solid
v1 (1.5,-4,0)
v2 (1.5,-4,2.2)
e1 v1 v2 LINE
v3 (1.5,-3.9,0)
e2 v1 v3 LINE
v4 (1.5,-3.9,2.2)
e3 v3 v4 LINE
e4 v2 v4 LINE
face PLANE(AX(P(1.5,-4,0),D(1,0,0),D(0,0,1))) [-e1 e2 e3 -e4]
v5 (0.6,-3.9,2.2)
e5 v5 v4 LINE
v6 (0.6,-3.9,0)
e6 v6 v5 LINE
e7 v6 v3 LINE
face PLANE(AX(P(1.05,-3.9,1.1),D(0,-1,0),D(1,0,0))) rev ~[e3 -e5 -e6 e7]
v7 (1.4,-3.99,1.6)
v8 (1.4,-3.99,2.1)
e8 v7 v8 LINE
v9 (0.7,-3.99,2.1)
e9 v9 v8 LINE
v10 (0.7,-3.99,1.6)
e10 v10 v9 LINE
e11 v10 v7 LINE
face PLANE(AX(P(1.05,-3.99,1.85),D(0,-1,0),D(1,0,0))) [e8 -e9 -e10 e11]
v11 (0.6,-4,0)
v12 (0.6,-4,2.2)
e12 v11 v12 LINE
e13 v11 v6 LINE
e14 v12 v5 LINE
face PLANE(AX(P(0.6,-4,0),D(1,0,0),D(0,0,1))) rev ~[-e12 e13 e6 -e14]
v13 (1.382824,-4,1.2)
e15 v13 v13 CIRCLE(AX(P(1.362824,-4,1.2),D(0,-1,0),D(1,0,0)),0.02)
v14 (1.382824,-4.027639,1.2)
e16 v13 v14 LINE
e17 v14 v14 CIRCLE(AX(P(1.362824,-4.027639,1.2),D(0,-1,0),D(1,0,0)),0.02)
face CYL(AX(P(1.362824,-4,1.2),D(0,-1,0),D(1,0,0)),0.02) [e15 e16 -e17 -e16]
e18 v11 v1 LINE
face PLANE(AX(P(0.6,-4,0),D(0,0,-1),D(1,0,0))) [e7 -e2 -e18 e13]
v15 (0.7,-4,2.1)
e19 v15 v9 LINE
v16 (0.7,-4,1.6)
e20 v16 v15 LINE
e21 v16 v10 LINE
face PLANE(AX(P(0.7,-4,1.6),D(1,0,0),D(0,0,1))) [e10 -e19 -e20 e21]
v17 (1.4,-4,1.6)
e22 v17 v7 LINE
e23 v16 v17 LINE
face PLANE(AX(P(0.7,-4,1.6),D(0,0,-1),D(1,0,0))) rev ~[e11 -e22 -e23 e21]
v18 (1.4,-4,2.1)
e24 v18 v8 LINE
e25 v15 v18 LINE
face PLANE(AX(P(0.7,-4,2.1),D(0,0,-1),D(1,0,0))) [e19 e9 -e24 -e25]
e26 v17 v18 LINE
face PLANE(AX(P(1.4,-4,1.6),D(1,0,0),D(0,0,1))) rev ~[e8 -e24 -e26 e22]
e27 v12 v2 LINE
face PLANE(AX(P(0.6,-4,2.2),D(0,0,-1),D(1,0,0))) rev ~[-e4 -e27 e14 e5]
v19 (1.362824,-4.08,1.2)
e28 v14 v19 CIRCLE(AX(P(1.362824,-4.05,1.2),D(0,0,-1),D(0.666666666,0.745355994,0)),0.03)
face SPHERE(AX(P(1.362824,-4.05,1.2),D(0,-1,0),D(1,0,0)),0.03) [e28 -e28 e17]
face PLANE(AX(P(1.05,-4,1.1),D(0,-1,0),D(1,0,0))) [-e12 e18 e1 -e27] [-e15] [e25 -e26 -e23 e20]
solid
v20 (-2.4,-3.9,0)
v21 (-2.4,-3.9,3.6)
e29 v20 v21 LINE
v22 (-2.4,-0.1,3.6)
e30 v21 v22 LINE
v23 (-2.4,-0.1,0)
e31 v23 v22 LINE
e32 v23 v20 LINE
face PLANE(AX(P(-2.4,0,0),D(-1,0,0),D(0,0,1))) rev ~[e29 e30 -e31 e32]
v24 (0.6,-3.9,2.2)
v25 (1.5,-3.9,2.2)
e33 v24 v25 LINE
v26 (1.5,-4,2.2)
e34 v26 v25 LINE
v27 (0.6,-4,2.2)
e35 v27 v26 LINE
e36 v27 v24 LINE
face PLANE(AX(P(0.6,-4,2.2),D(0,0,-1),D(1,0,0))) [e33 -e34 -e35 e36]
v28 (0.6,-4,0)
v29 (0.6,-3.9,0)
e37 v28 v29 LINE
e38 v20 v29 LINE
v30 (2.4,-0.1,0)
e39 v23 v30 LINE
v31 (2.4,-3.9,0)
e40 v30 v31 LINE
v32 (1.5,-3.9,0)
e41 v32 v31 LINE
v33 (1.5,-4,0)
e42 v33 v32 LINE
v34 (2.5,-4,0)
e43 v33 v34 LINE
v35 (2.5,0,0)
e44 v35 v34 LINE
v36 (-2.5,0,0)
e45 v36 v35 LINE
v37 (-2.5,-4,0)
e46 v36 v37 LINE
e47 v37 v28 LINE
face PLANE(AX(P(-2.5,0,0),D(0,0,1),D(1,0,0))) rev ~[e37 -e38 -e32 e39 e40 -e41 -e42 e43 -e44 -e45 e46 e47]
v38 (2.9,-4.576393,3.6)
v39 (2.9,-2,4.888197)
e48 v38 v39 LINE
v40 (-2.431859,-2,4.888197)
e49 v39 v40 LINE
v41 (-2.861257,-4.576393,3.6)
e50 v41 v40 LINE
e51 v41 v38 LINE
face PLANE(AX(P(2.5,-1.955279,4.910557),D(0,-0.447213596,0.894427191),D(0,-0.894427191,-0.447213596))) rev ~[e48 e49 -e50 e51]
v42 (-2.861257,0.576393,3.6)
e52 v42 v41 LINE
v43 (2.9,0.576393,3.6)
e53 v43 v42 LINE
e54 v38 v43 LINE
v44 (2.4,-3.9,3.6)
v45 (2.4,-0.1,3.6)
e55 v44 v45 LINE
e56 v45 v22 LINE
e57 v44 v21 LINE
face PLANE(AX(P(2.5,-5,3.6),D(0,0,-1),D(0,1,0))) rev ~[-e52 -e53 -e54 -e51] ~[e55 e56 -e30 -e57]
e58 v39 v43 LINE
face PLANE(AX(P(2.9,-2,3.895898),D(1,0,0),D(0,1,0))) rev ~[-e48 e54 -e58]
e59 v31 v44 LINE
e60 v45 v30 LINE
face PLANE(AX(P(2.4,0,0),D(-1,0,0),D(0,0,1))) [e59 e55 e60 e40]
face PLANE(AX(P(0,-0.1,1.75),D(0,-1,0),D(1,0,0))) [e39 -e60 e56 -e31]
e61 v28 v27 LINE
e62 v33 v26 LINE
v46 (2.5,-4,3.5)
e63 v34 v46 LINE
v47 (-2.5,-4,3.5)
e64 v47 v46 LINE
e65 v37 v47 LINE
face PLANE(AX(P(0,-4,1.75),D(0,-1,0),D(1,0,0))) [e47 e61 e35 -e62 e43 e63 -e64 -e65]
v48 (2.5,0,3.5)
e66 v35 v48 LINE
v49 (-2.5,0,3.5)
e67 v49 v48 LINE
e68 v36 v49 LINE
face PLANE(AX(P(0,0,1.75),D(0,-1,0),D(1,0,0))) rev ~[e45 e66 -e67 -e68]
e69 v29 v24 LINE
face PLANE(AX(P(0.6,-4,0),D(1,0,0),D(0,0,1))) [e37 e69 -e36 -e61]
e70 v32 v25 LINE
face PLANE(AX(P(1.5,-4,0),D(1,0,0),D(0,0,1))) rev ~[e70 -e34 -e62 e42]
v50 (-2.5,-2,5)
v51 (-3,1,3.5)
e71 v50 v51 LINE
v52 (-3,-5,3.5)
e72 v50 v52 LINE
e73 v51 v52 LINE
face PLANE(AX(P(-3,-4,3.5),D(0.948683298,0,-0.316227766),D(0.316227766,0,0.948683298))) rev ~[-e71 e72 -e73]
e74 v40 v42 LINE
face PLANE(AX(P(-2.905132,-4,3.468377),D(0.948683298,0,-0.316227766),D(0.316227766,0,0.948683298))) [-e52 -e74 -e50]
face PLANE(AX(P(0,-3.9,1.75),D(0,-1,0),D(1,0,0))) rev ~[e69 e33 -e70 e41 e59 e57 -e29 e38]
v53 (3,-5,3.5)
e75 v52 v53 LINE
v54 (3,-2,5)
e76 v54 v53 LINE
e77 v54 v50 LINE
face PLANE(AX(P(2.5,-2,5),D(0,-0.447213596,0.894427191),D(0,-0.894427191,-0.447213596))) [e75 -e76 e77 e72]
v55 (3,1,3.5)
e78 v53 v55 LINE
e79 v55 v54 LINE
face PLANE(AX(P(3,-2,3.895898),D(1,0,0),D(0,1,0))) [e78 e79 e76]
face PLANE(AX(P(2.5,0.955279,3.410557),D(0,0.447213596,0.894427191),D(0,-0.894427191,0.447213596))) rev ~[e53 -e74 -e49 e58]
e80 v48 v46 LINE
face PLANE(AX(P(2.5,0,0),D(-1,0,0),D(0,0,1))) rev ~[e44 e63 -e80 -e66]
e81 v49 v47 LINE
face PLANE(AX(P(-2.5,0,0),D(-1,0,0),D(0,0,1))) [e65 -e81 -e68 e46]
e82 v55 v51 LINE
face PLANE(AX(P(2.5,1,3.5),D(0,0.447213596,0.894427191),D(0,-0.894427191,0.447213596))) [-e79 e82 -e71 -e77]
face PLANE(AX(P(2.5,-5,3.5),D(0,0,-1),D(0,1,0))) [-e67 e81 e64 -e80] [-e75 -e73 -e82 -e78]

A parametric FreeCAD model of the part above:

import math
import FreeCAD as App
import Part
import Sketcher


def faces_at(feature, points):
    """Names of the faces that lie closest to the given points."""
    faces = feature.Shape.Faces
    near = lambda p: min(range(len(faces)), key=lambda i: faces[i].distToShape(Part.Vertex(*p))[0])
    return sorted({f"Face{near(p) + 1}" for p in points})

doc = App.newDocument("Part")
body = doc.addObject("PartDesign::Body", "Body")

sketch1 = body.newObject("Sketcher::SketchObject", "Sketch")
sketch1.AttachmentSupport = (doc.getObject("XZ_Plane"), [""])
sketch1.MapMode = "FlatFace"
sketch1.addGeometry([
    Part.LineSegment(App.Vector(-2.5, 3.5, 0), App.Vector(-2.5, 0, 0)),
    Part.LineSegment(App.Vector(-2.5, 0, 0), App.Vector(2.5, 0, 0)),
    Part.LineSegment(App.Vector(2.5, 0, 0), App.Vector(2.5, 3.5, 0)),
    Part.LineSegment(App.Vector(2.5, 3.5, 0), App.Vector(-2.5, 3.5, 0)),
], False)
sketch1.addConstraint([
    Sketcher.Constraint("Coincident", 0, 2, 1, 1),
    Sketcher.Constraint("Coincident", 1, 2, 2, 1),
    Sketcher.Constraint("Coincident", 2, 2, 3, 1),
    Sketcher.Constraint("Coincident", 3, 2, 0, 1),
    Sketcher.Constraint("Vertical", 0),
    Sketcher.Constraint("Horizontal", 1),
    Sketcher.Constraint("Vertical", 2),
    Sketcher.Constraint("Horizontal", 3),
    Sketcher.Constraint("Symmetric", 0, 2, 1, 2, -1, 1),
    Sketcher.Constraint("DistanceX", 1, 1, 1, 2, 5.0),
    Sketcher.Constraint("DistanceY", 0, 2, 0, 1, 3.5),
])
pad1 = body.newObject("PartDesign::Pad", "Pad")
pad1.Profile = sketch1
pad1.Length = 4

sketch2 = body.newObject("Sketcher::SketchObject", "Sketch001")
sketch2.AttachmentSupport = (doc.getObject("YZ_Plane"), [""])
sketch2.MapMode = "FlatFace"
sketch2.AttachmentOffset = App.Placement(App.Vector(0, 0, 2.5), App.Rotation())
sketch2.addGeometry([
    Part.LineSegment(App.Vector(-2, 5, 0), App.Vector(-5, 3.5, 0)),
    Part.LineSegment(App.Vector(-5, 3.5, 0), App.Vector(1, 3.5, 0)),
    Part.LineSegment(App.Vector(1, 3.5, 0), App.Vector(-2, 5, 0)),
], False)
sketch2.addConstraint([
    Sketcher.Constraint("Coincident", 0, 2, 1, 1),
    Sketcher.Constraint("Coincident", 1, 2, 2, 1),
    Sketcher.Constraint("Coincident", 2, 2, 0, 1),
    Sketcher.Constraint("Horizontal", 1),
    Sketcher.Constraint("Equal", 0, 2),
    Sketcher.Constraint("DistanceX", 1, 1, 1, 2, 6.0),
    Sketcher.Constraint("DistanceX", 0, 2, -1, 1, 5.0),
    Sketcher.Constraint("DistanceY", -1, 1, 2, 2, 5.0),
    Sketcher.Constraint("DistanceY", -1, 1, 0, 2, 3.5),
])
pad2 = body.newObject("PartDesign::Pad", "Pad001")
pad2.Profile = sketch2
pad2.Type = "TwoLengths"
pad2.Length = 0.5
pad2.Length2 = 5.5

sketch3 = body.newObject("Sketcher::SketchObject", "Sketch002")
sketch3.AttachmentSupport = (doc.getObject("XZ_Plane"), [""])
sketch3.MapMode = "FlatFace"
sketch3.AttachmentOffset = App.Placement(App.Vector(0, 0, 4), App.Rotation())
sketch3.addGeometry([
    Part.LineSegment(App.Vector(-3, 5, 0), App.Vector(-3, 3.5, 0)),
    Part.LineSegment(App.Vector(-3, 3.5, 0), App.Vector(-2.5, 5, 0)),
    Part.LineSegment(App.Vector(-2.5, 5, 0), App.Vector(-3, 5, 0)),
], False)
sketch3.addConstraint([
    Sketcher.Constraint("Coincident", 0, 2, 1, 1),
    Sketcher.Constraint("Coincident", 1, 2, 2, 1),
    Sketcher.Constraint("Coincident", 2, 2, 0, 1),
    Sketcher.Constraint("Vertical", 0),
    Sketcher.Constraint("Horizontal", 2),
    Sketcher.Constraint("DistanceX", 2, 2, 2, 1, 0.5),
    Sketcher.Constraint("DistanceY", 0, 2, 0, 1, 1.5),
    Sketcher.Constraint("DistanceX", 0, 2, -1, 1, 3.0),
    Sketcher.Constraint("DistanceY", -1, 1, 1, 2, 5.0),
])
pocket1 = body.newObject("PartDesign::Pocket", "Pocket")
pocket1.Profile = sketch3
pocket1.Type = "ThroughAll"
pocket1.Midplane = True
doc.recompute()

thickness = body.newObject("PartDesign::Thickness", "Thickness")
thickness.Base = (pocket1, faces_at(pocket1, [(0, -2, 0)]))
thickness.Value = 0.1
thickness.Reversed = True
thickness.Join = "Intersection"

sketch4 = body.newObject("Sketcher::SketchObject", "Sketch003")
sketch4.AttachmentSupport = (doc.getObject("XZ_Plane"), [""])
sketch4.MapMode = "FlatFace"
sketch4.AttachmentOffset = App.Placement(App.Vector(0, 0, 4), App.Rotation())
sketch4.addGeometry([
    Part.LineSegment(App.Vector(0.6, 2.2, 0), App.Vector(0.6, 0, 0)),
    Part.LineSegment(App.Vector(0.6, 0, 0), App.Vector(1.5, 0, 0)),
    Part.LineSegment(App.Vector(1.5, 0, 0), App.Vector(1.5, 2.2, 0)),
    Part.LineSegment(App.Vector(1.5, 2.2, 0), App.Vector(0.6, 2.2, 0)),
], False)
sketch4.addConstraint([
    Sketcher.Constraint("Coincident", 0, 2, 1, 1),
    Sketcher.Constraint("Coincident", 1, 2, 2, 1),
    Sketcher.Constraint("Coincident", 2, 2, 3, 1),
    Sketcher.Constraint("Coincident", 3, 2, 0, 1),
    Sketcher.Constraint("Vertical", 0),
    Sketcher.Constraint("Horizontal", 1),
    Sketcher.Constraint("Vertical", 2),
    Sketcher.Constraint("Horizontal", 3),
    Sketcher.Constraint("PointOnObject", 0, 2, -1),
    Sketcher.Constraint("DistanceX", 1, 1, 1, 2, 0.9),
    Sketcher.Constraint("DistanceY", 0, 2, 0, 1, 2.2),
    Sketcher.Constraint("DistanceX", -1, 1, 0, 2, 0.6),
])
pocket2 = body.newObject("PartDesign::Pocket", "Pocket001")
pocket2.Profile = sketch4
pocket2.Length = 0.1
body2 = doc.addObject("PartDesign::Body", "Body001")

sketch5 = body2.newObject("Sketcher::SketchObject", "Sketch004")
sketch5.AttachmentSupport = (doc.getObject("XZ_Plane001"), [""])
sketch5.MapMode = "FlatFace"
sketch5.AttachmentOffset = App.Placement(App.Vector(0, 0, 4), App.Rotation())
sketch5.addGeometry([
    Part.LineSegment(App.Vector(0.6, 2.2, 0), App.Vector(0.6, 0, 0)),
    Part.LineSegment(App.Vector(0.6, 0, 0), App.Vector(1.5, 0, 0)),
    Part.LineSegment(App.Vector(1.5, 0, 0), App.Vector(1.5, 2.2, 0)),
    Part.LineSegment(App.Vector(1.5, 2.2, 0), App.Vector(0.6, 2.2, 0)),
], False)
sketch5.addConstraint([
    Sketcher.Constraint("Coincident", 0, 2, 1, 1),
    Sketcher.Constraint("Coincident", 1, 2, 2, 1),
    Sketcher.Constraint("Coincident", 2, 2, 3, 1),
    Sketcher.Constraint("Coincident", 3, 2, 0, 1),
    Sketcher.Constraint("Vertical", 0),
    Sketcher.Constraint("Horizontal", 1),
    Sketcher.Constraint("Vertical", 2),
    Sketcher.Constraint("Horizontal", 3),
    Sketcher.Constraint("PointOnObject", 0, 2, -1),
    Sketcher.Constraint("DistanceX", 1, 1, 1, 2, 0.9),
    Sketcher.Constraint("DistanceY", 0, 2, 0, 1, 2.2),
    Sketcher.Constraint("DistanceX", -1, 1, 0, 2, 0.6),
])
pad3 = body2.newObject("PartDesign::Pad", "Pad002")
pad3.Profile = sketch5
pad3.Length = 0.1
pad3.Reversed = True

sketch6 = body2.newObject("Sketcher::SketchObject", "Sketch005")
sketch6.AttachmentSupport = (doc.getObject("XZ_Plane001"), [""])
sketch6.MapMode = "FlatFace"
sketch6.AttachmentOffset = App.Placement(App.Vector(0, 0, 4), App.Rotation())
sketch6.addGeometry([
    Part.LineSegment(App.Vector(0.7, 2.1, 0), App.Vector(0.7, 1.6, 0)),
    Part.LineSegment(App.Vector(0.7, 1.6, 0), App.Vector(1.4, 1.6, 0)),
    Part.LineSegment(App.Vector(1.4, 1.6, 0), App.Vector(1.4, 2.1, 0)),
    Part.LineSegment(App.Vector(1.4, 2.1, 0), App.Vector(0.7, 2.1, 0)),
], False)
sketch6.addConstraint([
    Sketcher.Constraint("Coincident", 0, 2, 1, 1),
    Sketcher.Constraint("Coincident", 1, 2, 2, 1),
    Sketcher.Constraint("Coincident", 2, 2, 3, 1),
    Sketcher.Constraint("Coincident", 3, 2, 0, 1),
    Sketcher.Constraint("Vertical", 0),
    Sketcher.Constraint("Horizontal", 1),
    Sketcher.Constraint("Vertical", 2),
    Sketcher.Constraint("Horizontal", 3),
    Sketcher.Constraint("DistanceX", 1, 1, 1, 2, 0.7),
    Sketcher.Constraint("DistanceY", 0, 2, 0, 1, 0.5),
    Sketcher.Constraint("DistanceX", -1, 1, 0, 2, 0.7),
    Sketcher.Constraint("DistanceY", -1, 1, 0, 2, 1.6),
])
pocket3 = body2.newObject("PartDesign::Pocket", "Pocket002")
pocket3.Profile = sketch6
pocket3.Length = 0.01

sketch7 = body2.newObject("Sketcher::SketchObject", "Sketch006")
sketch7.AttachmentSupport = (doc.getObject("XY_Plane001"), [""])
sketch7.MapMode = "FlatFace"
sketch7.AttachmentOffset = App.Placement(App.Vector(0, 0, 1.2), App.Rotation())
sketch7.addGeometry([
    Part.LineSegment(App.Vector(1.383, -4, 0), App.Vector(1.383, -4.028, 0)),
    Part.ArcOfCircle(Part.Circle(App.Vector(1.363, -4.05, 0), App.Vector(0, 0, 1), 0.03), math.radians(-90), math.radians(48)),
    Part.LineSegment(App.Vector(1.363, -4.08, 0), App.Vector(1.363, -4, 0)),
    Part.LineSegment(App.Vector(1.363, -4, 0), App.Vector(1.383, -4, 0)),
], False)
sketch7.addGeometry(Part.LineSegment(App.Vector(1.363, -4, 0), App.Vector(1.363, -4.08, 0)), True)
sketch7.addConstraint([
    Sketcher.Constraint("Coincident", 0, 2, 1, 2),
    Sketcher.Constraint("Coincident", 1, 1, 2, 1),
    Sketcher.Constraint("Coincident", 2, 2, 3, 1),
    Sketcher.Constraint("Coincident", 3, 2, 0, 1),
    Sketcher.Constraint("Vertical", 0),
    Sketcher.Constraint("Vertical", 2),
    Sketcher.Constraint("Horizontal", 3),
    Sketcher.Constraint("Vertical", 4),
    Sketcher.Constraint("Coincident", 4, 1, 2, 2),
    Sketcher.Constraint("Equal", 2, 4),
    Sketcher.Constraint("Radius", 1, 0.03),
    Sketcher.Constraint("DistanceY", 2, 2, -1, 1, 4.0),
    Sketcher.Constraint("DistanceX", 3, 1, 3, 2, 0.02),
    Sketcher.Constraint("DistanceY", 2, 1, 2, 2, 0.08),
    Sketcher.Constraint("DistanceX", 1, 3, 0, 2, 0.02),
    Sketcher.Constraint("DistanceX", -1, 1, 1, 3, 1.362824),
])
revolution = body2.newObject("PartDesign::Revolution", "Revolution")
revolution.Profile = sketch7
revolution.ReferenceAxis = (sketch7, ["Axis0"])
revolution.Angle = 360

doc.recompute()
